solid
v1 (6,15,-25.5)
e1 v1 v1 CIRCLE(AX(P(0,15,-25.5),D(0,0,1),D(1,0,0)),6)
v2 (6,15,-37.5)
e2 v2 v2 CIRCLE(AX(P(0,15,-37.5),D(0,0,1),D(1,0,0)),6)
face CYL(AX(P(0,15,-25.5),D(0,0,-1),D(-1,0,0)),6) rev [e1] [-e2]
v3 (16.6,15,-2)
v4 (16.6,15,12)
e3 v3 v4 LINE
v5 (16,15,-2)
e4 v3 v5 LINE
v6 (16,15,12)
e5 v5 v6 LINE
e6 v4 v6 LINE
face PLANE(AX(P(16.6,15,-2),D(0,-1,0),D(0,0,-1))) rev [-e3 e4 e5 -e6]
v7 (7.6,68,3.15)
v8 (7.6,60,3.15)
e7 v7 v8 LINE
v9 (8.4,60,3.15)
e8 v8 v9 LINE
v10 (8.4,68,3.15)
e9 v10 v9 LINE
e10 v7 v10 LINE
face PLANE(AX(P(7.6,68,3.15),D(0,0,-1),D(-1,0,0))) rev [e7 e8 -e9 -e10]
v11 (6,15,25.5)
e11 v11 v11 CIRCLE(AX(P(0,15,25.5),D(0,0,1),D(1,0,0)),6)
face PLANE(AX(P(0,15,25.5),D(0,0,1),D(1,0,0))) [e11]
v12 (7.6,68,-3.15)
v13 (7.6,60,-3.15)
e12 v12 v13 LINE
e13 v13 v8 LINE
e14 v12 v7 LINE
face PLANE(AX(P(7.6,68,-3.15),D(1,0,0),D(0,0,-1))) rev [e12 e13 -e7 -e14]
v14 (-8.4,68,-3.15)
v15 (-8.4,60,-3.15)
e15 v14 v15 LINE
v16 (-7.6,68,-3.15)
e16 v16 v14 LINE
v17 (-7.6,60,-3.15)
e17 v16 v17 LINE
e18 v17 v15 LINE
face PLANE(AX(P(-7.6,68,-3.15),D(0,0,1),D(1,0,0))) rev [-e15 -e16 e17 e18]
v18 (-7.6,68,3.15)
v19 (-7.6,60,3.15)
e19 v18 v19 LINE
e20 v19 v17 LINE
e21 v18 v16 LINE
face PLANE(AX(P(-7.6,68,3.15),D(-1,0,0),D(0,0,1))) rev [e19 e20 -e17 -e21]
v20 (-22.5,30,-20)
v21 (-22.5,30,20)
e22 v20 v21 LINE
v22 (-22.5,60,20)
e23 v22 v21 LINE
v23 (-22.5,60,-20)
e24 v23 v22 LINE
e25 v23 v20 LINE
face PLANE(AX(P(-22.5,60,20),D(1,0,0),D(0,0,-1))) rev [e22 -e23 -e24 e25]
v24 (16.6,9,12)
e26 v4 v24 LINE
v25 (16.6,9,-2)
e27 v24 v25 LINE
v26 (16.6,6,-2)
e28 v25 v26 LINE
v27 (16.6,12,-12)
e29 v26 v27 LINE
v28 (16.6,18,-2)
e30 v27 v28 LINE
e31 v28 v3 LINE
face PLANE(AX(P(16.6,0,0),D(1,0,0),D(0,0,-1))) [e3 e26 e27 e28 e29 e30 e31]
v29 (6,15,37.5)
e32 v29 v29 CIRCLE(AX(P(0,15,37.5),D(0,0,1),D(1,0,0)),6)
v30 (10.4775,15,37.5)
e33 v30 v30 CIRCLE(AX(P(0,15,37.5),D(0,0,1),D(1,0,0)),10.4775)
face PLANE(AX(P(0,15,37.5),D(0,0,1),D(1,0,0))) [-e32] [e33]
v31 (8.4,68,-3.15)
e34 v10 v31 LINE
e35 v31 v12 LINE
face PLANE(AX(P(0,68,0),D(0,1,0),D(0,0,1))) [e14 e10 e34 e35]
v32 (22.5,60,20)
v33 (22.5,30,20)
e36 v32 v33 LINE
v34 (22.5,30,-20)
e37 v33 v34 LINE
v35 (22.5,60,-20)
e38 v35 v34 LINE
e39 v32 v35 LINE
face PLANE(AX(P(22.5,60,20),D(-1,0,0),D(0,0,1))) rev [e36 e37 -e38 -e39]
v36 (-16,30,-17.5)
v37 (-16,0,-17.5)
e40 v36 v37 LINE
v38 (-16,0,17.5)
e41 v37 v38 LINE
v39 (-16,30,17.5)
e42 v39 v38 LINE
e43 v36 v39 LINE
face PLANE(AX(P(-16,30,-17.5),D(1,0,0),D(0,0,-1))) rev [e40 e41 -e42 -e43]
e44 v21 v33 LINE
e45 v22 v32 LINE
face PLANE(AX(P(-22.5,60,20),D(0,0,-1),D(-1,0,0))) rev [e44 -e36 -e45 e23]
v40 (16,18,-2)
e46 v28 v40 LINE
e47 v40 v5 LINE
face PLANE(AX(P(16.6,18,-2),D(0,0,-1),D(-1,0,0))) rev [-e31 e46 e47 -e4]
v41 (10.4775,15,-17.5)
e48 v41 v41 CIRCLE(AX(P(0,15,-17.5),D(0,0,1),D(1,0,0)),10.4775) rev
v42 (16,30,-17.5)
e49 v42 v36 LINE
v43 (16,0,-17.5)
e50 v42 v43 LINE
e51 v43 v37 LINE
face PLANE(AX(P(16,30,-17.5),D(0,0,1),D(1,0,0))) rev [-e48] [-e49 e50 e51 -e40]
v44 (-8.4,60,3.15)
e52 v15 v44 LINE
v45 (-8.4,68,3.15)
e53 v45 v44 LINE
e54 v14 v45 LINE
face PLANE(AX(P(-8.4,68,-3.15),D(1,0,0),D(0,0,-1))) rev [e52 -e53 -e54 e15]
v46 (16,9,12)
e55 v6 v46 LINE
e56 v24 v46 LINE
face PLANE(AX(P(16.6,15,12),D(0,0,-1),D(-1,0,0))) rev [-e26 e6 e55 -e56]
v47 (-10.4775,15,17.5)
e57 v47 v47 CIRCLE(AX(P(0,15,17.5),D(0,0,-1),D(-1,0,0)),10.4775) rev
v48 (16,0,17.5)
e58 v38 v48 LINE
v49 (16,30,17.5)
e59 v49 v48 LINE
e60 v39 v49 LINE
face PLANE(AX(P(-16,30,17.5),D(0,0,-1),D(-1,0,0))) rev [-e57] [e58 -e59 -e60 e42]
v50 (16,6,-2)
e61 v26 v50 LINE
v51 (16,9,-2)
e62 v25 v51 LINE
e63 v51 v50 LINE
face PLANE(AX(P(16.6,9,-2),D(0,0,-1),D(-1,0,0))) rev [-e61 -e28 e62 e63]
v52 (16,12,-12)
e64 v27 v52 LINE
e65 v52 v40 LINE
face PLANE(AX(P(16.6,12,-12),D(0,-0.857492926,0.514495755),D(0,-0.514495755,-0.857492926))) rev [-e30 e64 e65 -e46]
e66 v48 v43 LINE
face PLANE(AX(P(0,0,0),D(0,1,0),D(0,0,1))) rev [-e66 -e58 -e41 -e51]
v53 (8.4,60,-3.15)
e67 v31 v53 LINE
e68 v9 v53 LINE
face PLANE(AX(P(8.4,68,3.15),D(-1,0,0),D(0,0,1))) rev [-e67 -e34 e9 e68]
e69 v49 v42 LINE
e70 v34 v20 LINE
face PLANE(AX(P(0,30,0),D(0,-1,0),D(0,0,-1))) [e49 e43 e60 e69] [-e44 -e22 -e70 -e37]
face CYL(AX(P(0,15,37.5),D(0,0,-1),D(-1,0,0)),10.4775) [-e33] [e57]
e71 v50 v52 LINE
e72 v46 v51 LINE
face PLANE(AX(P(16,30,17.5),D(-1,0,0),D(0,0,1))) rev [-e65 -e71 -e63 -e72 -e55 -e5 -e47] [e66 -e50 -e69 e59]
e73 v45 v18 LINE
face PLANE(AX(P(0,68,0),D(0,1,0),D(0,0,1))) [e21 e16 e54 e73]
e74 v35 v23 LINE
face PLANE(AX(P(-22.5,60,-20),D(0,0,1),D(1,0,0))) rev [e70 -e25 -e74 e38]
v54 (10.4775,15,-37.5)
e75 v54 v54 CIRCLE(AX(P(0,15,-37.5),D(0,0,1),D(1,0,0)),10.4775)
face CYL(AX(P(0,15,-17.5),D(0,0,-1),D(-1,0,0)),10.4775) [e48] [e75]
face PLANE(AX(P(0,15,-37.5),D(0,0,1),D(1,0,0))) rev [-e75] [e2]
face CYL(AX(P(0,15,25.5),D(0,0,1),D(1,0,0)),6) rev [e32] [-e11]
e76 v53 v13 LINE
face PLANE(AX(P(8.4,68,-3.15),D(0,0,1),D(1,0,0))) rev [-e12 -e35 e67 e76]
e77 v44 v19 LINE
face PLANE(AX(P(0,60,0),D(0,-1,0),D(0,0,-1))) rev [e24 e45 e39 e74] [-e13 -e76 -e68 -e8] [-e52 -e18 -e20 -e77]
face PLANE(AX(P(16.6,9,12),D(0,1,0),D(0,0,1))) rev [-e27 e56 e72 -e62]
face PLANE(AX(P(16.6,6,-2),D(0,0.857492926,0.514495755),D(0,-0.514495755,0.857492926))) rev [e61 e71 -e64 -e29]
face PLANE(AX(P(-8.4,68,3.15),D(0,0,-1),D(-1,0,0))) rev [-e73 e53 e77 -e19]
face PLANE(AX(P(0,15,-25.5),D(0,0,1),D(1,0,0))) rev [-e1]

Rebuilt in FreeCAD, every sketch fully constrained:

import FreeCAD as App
import Part
import Sketcher
from FreeCAD import Vector
Q = App.Units.Quantity

doc = App.newDocument("Part")
body = doc.addObject("PartDesign::Body", "Body")

# Sketch on XZ plane
sketch1 = body.newObject("Sketcher::SketchObject", "Sketch")
sketch1.AttachmentSupport = (doc.getObject("XZ_Plane"), [""])
sketch1.MapMode = "FlatFace"
sketch1.addGeometry([
    Part.LineSegment(Vector(-16, -18, 0), Vector(-16, 18, 0)),
    Part.LineSegment(Vector(-16, 18, 0), Vector(16, 18, 0)),
    Part.LineSegment(Vector(16, 18, 0), Vector(16, -18, 0)),
    Part.LineSegment(Vector(16, -18, 0), Vector(-16, -18, 0)),
], False)
sketch1.addConstraint([
    Sketcher.Constraint("Coincident", 0, 2, 1, 1),
    Sketcher.Constraint("Coincident", 1, 2, 2, 1),
    Sketcher.Constraint("Coincident", 2, 2, 3, 1),
    Sketcher.Constraint("Coincident", 3, 2, 0, 1),
    Sketcher.Constraint("Vertical", 0),
    Sketcher.Constraint("Horizontal", 1),
    Sketcher.Constraint("Vertical", 2),
    Sketcher.Constraint("Horizontal", 3),
    Sketcher.Constraint("Symmetric", 0, 2, 2, 2, -1, 1),
    Sketcher.Constraint("DistanceX", 1, 1, 1, 2, Q("32 mm")),
    Sketcher.Constraint("DistanceY", 0, 1, 0, 2, Q("35 mm")),
])
pad1 = body.newObject("PartDesign::Pad", "Pad")
pad1.Profile = sketch1
pad1.Length = 30
pad1.Reversed = True

# Sketch on XZ plane
sketch2 = body.newObject("Sketcher::SketchObject", "Sketch001")
sketch2.AttachmentSupport = (doc.getObject("XZ_Plane"), [""])
sketch2.MapMode = "FlatFace"
sketch2.AttachmentOffset = App.Placement(Vector(0, 0, -30), App.Rotation())
sketch2.addGeometry([
    Part.LineSegment(Vector(-22, -20, 0), Vector(-22, 20, 0)),
    Part.LineSegment(Vector(-22, 20, 0), Vector(22, 20, 0)),
    Part.LineSegment(Vector(22, 20, 0), Vector(22, -20, 0)),
    Part.LineSegment(Vector(22, -20, 0), Vector(-22, -20, 0)),
], False)
sketch2.addConstraint([
    Sketcher.Constraint("Coincident", 0, 2, 1, 1),
    Sketcher.Constraint("Coincident", 1, 2, 2, 1),
    Sketcher.Constraint("Coincident", 2, 2, 3, 1),
    Sketcher.Constraint("Coincident", 3, 2, 0, 1),
    Sketcher.Constraint("Vertical", 0),
    Sketcher.Constraint("Horizontal", 1),
    Sketcher.Constraint("Vertical", 2),
    Sketcher.Constraint("Horizontal", 3),
    Sketcher.Constraint("Symmetric", 0, 2, 2, 2, -1, 1),
    Sketcher.Constraint("DistanceX", 1, 1, 1, 2, Q("45 mm")),
    Sketcher.Constraint("DistanceY", 0, 1, 0, 2, Q("40 mm")),
])
pad2 = body.newObject("PartDesign::Pad", "Pad001")
pad2.Profile = sketch2
pad2.Length = 30
pad2.Reversed = True

# Sketch on XY plane
sketch3 = body.newObject("Sketcher::SketchObject", "Sketch002")
sketch3.AttachmentSupport = (doc.getObject("XY_Plane"), [""])
sketch3.MapMode = "FlatFace"
sketch3.AttachmentOffset = App.Placement(Vector(0, 0, 17.5), App.Rotation())
sketch3.addGeometry(Part.Circle(Vector(0, 15, 0), Vector(0, 0, 1), 10), False)
sketch3.addConstraint([
    Sketcher.Constraint("PointOnObject", 0, 3, -2),
    Sketcher.Constraint("Diameter", 0, Q("20.955 mm")),
    Sketcher.Constraint("DistanceY", -1, 1, 0, 3, Q("15 mm")),
])
pad3 = body.newObject("PartDesign::Pad", "Pad002")
pad3.Profile = sketch3
pad3.Length = 20

# Sketch on XY plane
sketch4 = body.newObject("Sketcher::SketchObject", "Sketch003")
sketch4.AttachmentSupport = (doc.getObject("XY_Plane"), [""])
sketch4.MapMode = "FlatFace"
sketch4.AttachmentOffset = App.Placement(Vector(0, 0, -37.5), App.Rotation())
sketch4.addGeometry(Part.Circle(Vector(0, 15, 0), Vector(0, 0, 1), 10), False)
sketch4.addConstraint([
    Sketcher.Constraint("PointOnObject", 0, 3, -2),
    Sketcher.Constraint("Diameter", 0, Q("20.955 mm")),
    Sketcher.Constraint("DistanceY", -1, 1, 0, 3, Q("15 mm")),
])
pad4 = body.newObject("PartDesign::Pad", "Pad003")
pad4.Profile = sketch4
pad4.Length = 20

# Sketch on XY plane
sketch5 = body.newObject("Sketcher::SketchObject", "Sketch004")
sketch5.AttachmentSupport = (doc.getObject("XY_Plane"), [""])
sketch5.MapMode = "FlatFace"
sketch5.AttachmentOffset = App.Placement(Vector(0, 0, 37.5), App.Rotation())
sketch5.addGeometry(Part.Circle(Vector(0, 15, 0), Vector(0, 0, 1), 6), False)
sketch5.addConstraint([
    Sketcher.Constraint("PointOnObject", 0, 3, -2),
    Sketcher.Constraint("Diameter", 0, Q("12 mm")),
    Sketcher.Constraint("DistanceY", -1, 1, 0, 3, Q("15 mm")),
])
pocket1 = body.newObject("PartDesign::Pocket", "Pocket")
pocket1.Profile = sketch5
pocket1.Length = 12

# Sketch on XY plane
sketch6 = body.newObject("Sketcher::SketchObject", "Sketch005")
sketch6.AttachmentSupport = (doc.getObject("XY_Plane"), [""])
sketch6.MapMode = "FlatFace"
sketch6.AttachmentOffset = App.Placement(Vector(0, 0, -25.5), App.Rotation())
sketch6.addGeometry(Part.Circle(Vector(0, 15, 0), Vector(0, 0, 1), 6), False)
sketch6.addConstraint([
    Sketcher.Constraint("PointOnObject", 0, 3, -2),
    Sketcher.Constraint("Diameter", 0, Q("12 mm")),
    Sketcher.Constraint("DistanceY", -1, 1, 0, 3, Q("15 mm")),
])
pocket2 = body.newObject("PartDesign::Pocket", "Pocket001")
pocket2.Profile = sketch6
pocket2.Length = 12

# Sketch on XZ plane
sketch7 = body.newObject("Sketcher::SketchObject", "Sketch006")
sketch7.AttachmentSupport = (doc.getObject("XZ_Plane"), [""])
sketch7.MapMode = "FlatFace"
sketch7.AttachmentOffset = App.Placement(Vector(0, 0, -60), App.Rotation())
sketch7.addGeometry([
    Part.LineSegment(Vector(-8.4, -3.1, 0), Vector(-8.4, 3.1, 0)),  # 0
    Part.LineSegment(Vector(-8.4, 3.1, 0), Vector(-7.6, 3.1, 0)),  # 1
    Part.LineSegment(Vector(-7.6, 3.1, 0), Vector(-7.6, -3.1, 0)),  # 2
    Part.LineSegment(Vector(-7.6, -3.1, 0), Vector(-8.4, -3.1, 0)),  # 3
    Part.LineSegment(Vector(7.6, -3.1, 0), Vector(7.6, 3.1, 0)),  # 4
    Part.LineSegment(Vector(7.6, 3.1, 0), Vector(8.4, 3.1, 0)),  # 5
    Part.LineSegment(Vector(8.4, 3.1, 0), Vector(8.4, -3.1, 0)),  # 6
    Part.LineSegment(Vector(8.4, -3.1, 0), Vector(7.6, -3.1, 0)),  # 7
], False)
sketch7.addConstraint([
    Sketcher.Constraint("Coincident", 0, 2, 1, 1),
    Sketcher.Constraint("Coincident", 1, 2, 2, 1),
    Sketcher.Constraint("Coincident", 2, 2, 3, 1),
    Sketcher.Constraint("Coincident", 3, 2, 0, 1),
    Sketcher.Constraint("Coincident", 4, 2, 5, 1),
    Sketcher.Constraint("Coincident", 5, 2, 6, 1),
    Sketcher.Constraint("Coincident", 6, 2, 7, 1),
    Sketcher.Constraint("Coincident", 7, 2, 4, 1),
    Sketcher.Constraint("Vertical", 0),
    Sketcher.Constraint("Horizontal", 1),
    Sketcher.Constraint("Vertical", 2),
    Sketcher.Constraint("Horizontal", 3),
    Sketcher.Constraint("Vertical", 4),
    Sketcher.Constraint("Horizontal", 5),
    Sketcher.Constraint("Vertical", 6),
    Sketcher.Constraint("Horizontal", 7),
    Sketcher.Constraint("Symmetric", 2, 2, 4, 2, -1, 1),
    Sketcher.Constraint("Symmetric", 0, 2, 6, 2, -1, 1),
    Sketcher.Constraint("Horizontal", 1, 2, 4, 2),
    Sketcher.Constraint("DistanceX", 1, 1, 1, 2, Q("0.8 mm")),
    Sketcher.Constraint("DistanceY", 0, 1, 0, 2, Q("6.3 mm")),
    Sketcher.Constraint("DistanceX", 0, 2, 4, 2, Q("16 mm")),
])
pad5 = body.newObject("PartDesign::Pad", "Pad004")
pad5.Profile = sketch7
pad5.Length = 8
pad5.Reversed = True

# Sketch on YZ plane
sketch8 = body.newObject("Sketcher::SketchObject", "Sketch007")
sketch8.AttachmentSupport = (doc.getObject("YZ_Plane"), [""])
sketch8.MapMode = "FlatFace"
sketch8.AttachmentOffset = App.Placement(Vector(0, 0, 16), App.Rotation())
sketch8.addGeometry([
    Part.LineSegment(Vector(9, 12, 0), Vector(9, -2, 0)),  # 0
    Part.LineSegment(Vector(9, -2, 0), Vector(6, -2, 0)),  # 1
    Part.LineSegment(Vector(6, -2, 0), Vector(12, -12, 0)),  # 2
    Part.LineSegment(Vector(12, -12, 0), Vector(18, -2, 0)),  # 3
    Part.LineSegment(Vector(18, -2, 0), Vector(15, -2, 0)),  # 4
    Part.LineSegment(Vector(15, -2, 0), Vector(15, 12, 0)),  # 5
    Part.LineSegment(Vector(15, 12, 0), Vector(9, 12, 0)),  # 6
], False)
sketch8.addConstraint([
    Sketcher.Constraint("Coincident", 0, 2, 1, 1),
    Sketcher.Constraint("Coincident", 1, 2, 2, 1),
    Sketcher.Constraint("Coincident", 2, 2, 3, 1),
    Sketcher.Constraint("Coincident", 3, 2, 4, 1),
    Sketcher.Constraint("Coincident", 4, 2, 5, 1),
    Sketcher.Constraint("Coincident", 5, 2, 6, 1),
    Sketcher.Constraint("Coincident", 6, 2, 0, 1),
    Sketcher.Constraint("Vertical", 0),
    Sketcher.Constraint("Horizontal", 1),
    Sketcher.Constraint("Horizontal", 4),
    Sketcher.Constraint("Vertical", 5),
    Sketcher.Constraint("Horizontal", 6),
    Sketcher.Constraint("Horizontal", 1, 2, 3, 2),
    Sketcher.Constraint("Equal", 1, 4),
    Sketcher.Constraint("Equal", 2, 3),
    Sketcher.Constraint("DistanceX", 1, 2, 1, 1, Q("3 mm")),
    Sketcher.Constraint("DistanceX", 6, 2, 6, 1, Q("6 mm")),
    Sketcher.Constraint("DistanceY", 0, 2, 0, 1, Q("14 mm")),
    Sketcher.Constraint("DistanceX", -1, 1, 0, 2, Q("9 mm")),
    Sketcher.Constraint("DistanceY", 0, 2, -1, 1, Q("2 mm")),
    Sketcher.Constraint("DistanceY", 2, 2, -1, 1, Q("12 mm")),
])
pad6 = body.newObject("PartDesign::Pad", "Pad005")
pad6.Profile = sketch8
pad6.Length = 0.6

doc.recompute()
